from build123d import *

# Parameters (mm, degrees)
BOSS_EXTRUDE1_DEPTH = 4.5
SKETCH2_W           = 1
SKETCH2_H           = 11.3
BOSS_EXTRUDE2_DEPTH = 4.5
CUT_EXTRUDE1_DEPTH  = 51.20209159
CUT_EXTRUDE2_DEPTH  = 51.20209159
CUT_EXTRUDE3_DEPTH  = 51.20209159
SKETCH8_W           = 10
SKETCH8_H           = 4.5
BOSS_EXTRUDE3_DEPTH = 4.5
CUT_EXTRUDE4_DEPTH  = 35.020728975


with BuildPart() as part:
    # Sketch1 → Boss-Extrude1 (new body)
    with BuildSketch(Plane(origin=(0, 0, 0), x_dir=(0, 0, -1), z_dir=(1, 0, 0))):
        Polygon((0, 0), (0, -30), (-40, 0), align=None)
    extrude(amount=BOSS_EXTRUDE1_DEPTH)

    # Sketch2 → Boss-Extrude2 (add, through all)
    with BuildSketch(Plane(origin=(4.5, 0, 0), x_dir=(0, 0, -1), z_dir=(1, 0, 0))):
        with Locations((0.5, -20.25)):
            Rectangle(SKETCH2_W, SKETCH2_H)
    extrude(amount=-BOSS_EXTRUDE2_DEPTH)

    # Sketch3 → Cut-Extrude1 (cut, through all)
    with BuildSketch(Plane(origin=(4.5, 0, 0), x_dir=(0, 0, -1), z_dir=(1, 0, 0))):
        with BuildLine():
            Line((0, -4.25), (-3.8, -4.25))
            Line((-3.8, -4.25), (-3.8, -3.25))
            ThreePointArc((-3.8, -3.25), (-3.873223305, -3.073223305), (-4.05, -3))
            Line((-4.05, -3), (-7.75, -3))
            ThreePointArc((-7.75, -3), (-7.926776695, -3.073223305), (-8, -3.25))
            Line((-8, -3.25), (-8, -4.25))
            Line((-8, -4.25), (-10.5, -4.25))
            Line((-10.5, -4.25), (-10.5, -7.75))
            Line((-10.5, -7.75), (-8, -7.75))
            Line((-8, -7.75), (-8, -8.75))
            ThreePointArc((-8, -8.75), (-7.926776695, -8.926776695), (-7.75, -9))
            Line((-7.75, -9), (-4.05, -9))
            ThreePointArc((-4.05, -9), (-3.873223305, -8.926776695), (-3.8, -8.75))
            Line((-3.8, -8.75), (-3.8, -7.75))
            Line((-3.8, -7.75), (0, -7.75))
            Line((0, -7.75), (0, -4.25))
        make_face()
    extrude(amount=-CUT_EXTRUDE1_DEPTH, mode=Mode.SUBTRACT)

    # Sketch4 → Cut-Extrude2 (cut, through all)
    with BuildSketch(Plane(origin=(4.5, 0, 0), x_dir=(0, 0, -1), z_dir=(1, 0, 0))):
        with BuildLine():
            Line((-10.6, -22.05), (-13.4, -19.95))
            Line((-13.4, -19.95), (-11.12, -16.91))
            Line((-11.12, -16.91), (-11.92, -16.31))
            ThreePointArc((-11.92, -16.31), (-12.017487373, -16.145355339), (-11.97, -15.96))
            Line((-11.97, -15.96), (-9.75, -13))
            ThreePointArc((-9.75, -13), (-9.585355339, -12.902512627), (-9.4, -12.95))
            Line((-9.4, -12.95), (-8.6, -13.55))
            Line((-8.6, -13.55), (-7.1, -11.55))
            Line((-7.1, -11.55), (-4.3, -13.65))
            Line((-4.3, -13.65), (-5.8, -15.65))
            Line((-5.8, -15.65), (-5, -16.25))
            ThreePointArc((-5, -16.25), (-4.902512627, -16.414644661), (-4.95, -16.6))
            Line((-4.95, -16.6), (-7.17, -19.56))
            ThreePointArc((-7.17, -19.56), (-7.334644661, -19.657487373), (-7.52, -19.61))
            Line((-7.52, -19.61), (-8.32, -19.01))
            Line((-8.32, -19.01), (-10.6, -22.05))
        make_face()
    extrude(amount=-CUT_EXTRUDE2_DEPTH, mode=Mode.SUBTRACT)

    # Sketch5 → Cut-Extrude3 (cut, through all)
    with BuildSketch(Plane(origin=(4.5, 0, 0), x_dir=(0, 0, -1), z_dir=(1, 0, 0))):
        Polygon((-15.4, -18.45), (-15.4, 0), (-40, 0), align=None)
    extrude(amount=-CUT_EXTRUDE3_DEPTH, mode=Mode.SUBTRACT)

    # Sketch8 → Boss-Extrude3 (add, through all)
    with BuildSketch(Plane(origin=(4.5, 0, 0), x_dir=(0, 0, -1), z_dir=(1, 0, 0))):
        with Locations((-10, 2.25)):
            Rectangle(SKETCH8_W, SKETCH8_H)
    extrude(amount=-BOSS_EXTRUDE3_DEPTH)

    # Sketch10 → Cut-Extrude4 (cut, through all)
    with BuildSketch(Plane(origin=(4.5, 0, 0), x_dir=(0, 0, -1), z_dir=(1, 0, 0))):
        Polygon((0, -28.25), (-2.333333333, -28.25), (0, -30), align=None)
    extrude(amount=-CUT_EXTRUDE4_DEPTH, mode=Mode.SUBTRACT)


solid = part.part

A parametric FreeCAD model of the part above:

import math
import FreeCAD as App
import Part
import Sketcher
Q = App.Units.Quantity

doc = App.newDocument("Part")
body = doc.addObject("PartDesign::Body", "Body")

# Sketch on YZ plane
sketch1 = doc.addObject("Sketcher::SketchObject", "Sketch")
body.addObject(sketch1)
sketch1.AttachmentSupport = (doc.YZ_Plane, [""])
sketch1.MapMode = "FlatFace"
sketch1.addGeometry([
    Part.LineSegment(App.Vector(-30, 0, 0), App.Vector(0, 0, 0)),
    Part.LineSegment(App.Vector(0, 0, 0), App.Vector(0, 40, 0)),
    Part.LineSegment(App.Vector(0, 40, 0), App.Vector(-30, 0, 0)),
], False)
sketch1.addConstraint([
    Sketcher.Constraint("Coincident", 0, 2, 1, 1),
    Sketcher.Constraint("Coincident", 1, 2, 2, 1),
    Sketcher.Constraint("Coincident", 2, 2, 0, 1),
    Sketcher.Constraint("Horizontal", 0),
    Sketcher.Constraint("Vertical", 1),
    Sketcher.Constraint("Coincident", 0, 2, -1, 1),
    Sketcher.Constraint("DistanceX", 0, 1, 0, 2, Q("30 mm")),
    Sketcher.Constraint("DistanceY", 1, 1, 1, 2, Q("40 mm")),
])
pad1 = doc.addObject("PartDesign::Pad", "Pad")
body.addObject(pad1)
pad1.Profile = sketch1
pad1.Length = 4.5

# Sketch on YZ plane
sketch2 = doc.addObject("Sketcher::SketchObject", "Sketch001")
body.addObject(sketch2)
sketch2.AttachmentSupport = (doc.YZ_Plane, [""])
sketch2.MapMode = "FlatFace"
sketch2.AttachmentOffset = App.Placement(App.Vector(0, 0, 4.5), App.Rotation())
sketch2.addGeometry([
    Part.LineSegment(App.Vector(-14.6, 0, 0), App.Vector(-25.9, 0, 0)),
    Part.LineSegment(App.Vector(-25.9, 0, 0), App.Vector(-25.9, -1, 0)),
    Part.LineSegment(App.Vector(-25.9, -1, 0), App.Vector(-14.6, -1, 0)),
    Part.LineSegment(App.Vector(-14.6, -1, 0), App.Vector(-14.6, 0, 0)),
], False)
sketch2.addConstraint([
    Sketcher.Constraint("Coincident", 0, 2, 1, 1),
    Sketcher.Constraint("Coincident", 1, 2, 2, 1),
    Sketcher.Constraint("Coincident", 2, 2, 3, 1),
    Sketcher.Constraint("Coincident", 3, 2, 0, 1),
    Sketcher.Constraint("Horizontal", 0),
    Sketcher.Constraint("Vertical", 1),
    Sketcher.Constraint("Horizontal", 2),
    Sketcher.Constraint("Vertical", 3),
    Sketcher.Constraint("PointOnObject", 0, 2, -1),
    Sketcher.Constraint("DistanceY", 1, 2, 1, 1, Q("1 mm")),
    Sketcher.Constraint("DistanceX", 0, 2, 0, 1, Q("11.3 mm")),
    Sketcher.Constraint("DistanceX", 0, 2, -1, 1, Q("25.9 mm")),
])
pad2 = doc.addObject("PartDesign::Pad", "Pad001")
body.addObject(pad2)
pad2.Profile = sketch2
pad2.Length = 4.5
pad2.Reversed = True

# Sketch on YZ plane
sketch3 = doc.addObject("Sketcher::SketchObject", "Sketch002")
body.addObject(sketch3)
sketch3.AttachmentSupport = (doc.YZ_Plane, [""])
sketch3.MapMode = "FlatFace"
sketch3.AttachmentOffset = App.Placement(App.Vector(0, 0, 4.5), App.Rotation())
sketch3.addGeometry([
    Part.LineSegment(App.Vector(-4.25, 0, 0), App.Vector(-4.25, 3.8, 0)),  # 0
    Part.LineSegment(App.Vector(-4.25, 3.8, 0), App.Vector(-3.25, 3.8, 0)),  # 1
    Part.ArcOfCircle(Part.Circle(App.Vector(-3.25, 4.05, 0), App.Vector(0, 0, 1), 0.25), math.radians(-90), math.radians(0)),  # 2
    Part.LineSegment(App.Vector(-3, 4.05, 0), App.Vector(-3, 7.75, 0)),  # 3
    Part.ArcOfCircle(Part.Circle(App.Vector(-3.25, 7.75, 0), App.Vector(0, 0, 1), 0.25), math.radians(0), math.radians(90)),  # 4
    Part.LineSegment(App.Vector(-3.25, 8, 0), App.Vector(-4.25, 8, 0)),  # 5
    Part.LineSegment(App.Vector(-4.25, 8, 0), App.Vector(-4.25, 10.5, 0)),  # 6
    Part.LineSegment(App.Vector(-4.25, 10.5, 0), App.Vector(-7.75, 10.5, 0)),  # 7
    Part.LineSegment(App.Vector(-7.75, 10.5, 0), App.Vector(-7.75, 8, 0)),  # 8
    Part.LineSegment(App.Vector(-7.75, 8, 0), App.Vector(-8.75, 8, 0)),  # 9
    Part.ArcOfCircle(Part.Circle(App.Vector(-8.75, 7.75, 0), App.Vector(0, 0, 1), 0.25), math.radians(90), math.radians(180)),  # 10
    Part.LineSegment(App.Vector(-9, 7.75, 0), App.Vector(-9, 4.05, 0)),  # 11
    Part.ArcOfCircle(Part.Circle(App.Vector(-8.75, 4.05, 0), App.Vector(0, 0, 1), 0.25), math.radians(-180), math.radians(-90)),  # 12
    Part.LineSegment(App.Vector(-8.75, 3.8, 0), App.Vector(-7.75, 3.8, 0)),  # 13
    Part.LineSegment(App.Vector(-7.75, 3.8, 0), App.Vector(-7.75, 0, 0)),  # 14
    Part.LineSegment(App.Vector(-7.75, 0, 0), App.Vector(-4.25, 0, 0)),  # 15
], False)
sketch3.addConstraint([
    Sketcher.Constraint("Coincident", 0, 2, 1, 1),
    Sketcher.Constraint("Tangent", 1, 2, 2, 1),
    Sketcher.Constraint("Tangent", 2, 2, 3, 1),
    Sketcher.Constraint("Tangent", 3, 2, 4, 1),
    Sketcher.Constraint("Tangent", 4, 2, 5, 1),
    Sketcher.Constraint("Coincident", 5, 2, 6, 1),
    Sketcher.Constraint("Coincident", 6, 2, 7, 1),
    Sketcher.Constraint("Coincident", 7, 2, 8, 1),
    Sketcher.Constraint("Coincident", 8, 2, 9, 1),
    Sketcher.Constraint("Tangent", 9, 2, 10, 1),
    Sketcher.Constraint("Tangent", 10, 2, 11, 1),
    Sketcher.Constraint("Tangent", 11, 2, 12, 1),
    Sketcher.Constraint("Tangent", 12, 2, 13, 1),
    Sketcher.Constraint("Coincident", 13, 2, 14, 1),
    Sketcher.Constraint("Coincident", 14, 2, 15, 1),
    Sketcher.Constraint("Coincident", 15, 2, 0, 1),
    Sketcher.Constraint("Vertical", 0),
    Sketcher.Constraint("Horizontal", 1),
    Sketcher.Constraint("Vertical", 3),
    Sketcher.Constraint("Horizontal", 5),
    Sketcher.Constraint("Vertical", 6),
    Sketcher.Constraint("Horizontal", 7),
    Sketcher.Constraint("Vertical", 8),
    Sketcher.Constraint("Horizontal", 9),
    Sketcher.Constraint("Vertical", 11),
    Sketcher.Constraint("Horizontal", 13),
    Sketcher.Constraint("Vertical", 14),
    Sketcher.Constraint("Horizontal", 15),
    Sketcher.Constraint("Equal", 2, 4),
    Sketcher.Constraint("Equal", 4, 10),
    Sketcher.Constraint("Equal", 10, 12),
    Sketcher.Constraint("PointOnObject", 14, 2, -1),
    Sketcher.Constraint("Horizontal", 4, 3, 10, 3),
    Sketcher.Constraint("Horizontal", 2, 3, 12, 3),
    Sketcher.Constraint("Vertical", 0, 2, 5, 2),
    Sketcher.Constraint("Vertical", 8, 2, 13, 2),
    Sketcher.Constraint("Equal", 5, 9),
    Sketcher.Constraint("DistanceX", 1, 1, 1, 2, Q("1 mm")),
    Sketcher.Constraint("Radius", 2, Q("0.25 mm")),
    Sketcher.Constraint("DistanceX", 7, 2, 7, 1, Q("3.5 mm")),
    Sketcher.Constraint("DistanceY", 0, 1, 0, 2, Q("3.8 mm")),
    Sketcher.Constraint("DistanceY", 3, 1, 3, 2, Q("3.7 mm")),
    Sketcher.Constraint("DistanceY", 6, 1, 6, 2, Q("2.5 mm")),
    Sketcher.Constraint("DistanceX", 2, 2, -1, 1, Q("3 mm")),
])
pocket1 = doc.addObject("PartDesign::Pocket", "Pocket")
body.addObject(pocket1)
pocket1.Profile = sketch3
pocket1.Type = "ThroughAll"

# Sketch on YZ plane
sketch4 = doc.addObject("Sketcher::SketchObject", "Sketch003")
body.addObject(sketch4)
sketch4.AttachmentSupport = (doc.YZ_Plane, [""])
sketch4.MapMode = "FlatFace"
sketch4.AttachmentOffset = App.Placement(App.Vector(0, 0, 4.5), App.Rotation())
sketch4.addGeometry([
    Part.LineSegment(App.Vector(-19.95, 13.4, 0), App.Vector(-22.05, 10.6, 0)),  # 0
    Part.LineSegment(App.Vector(-22.05, 10.6, 0), App.Vector(-19.01, 8.32, 0)),  # 1
    Part.LineSegment(App.Vector(-19.01, 8.32, 0), App.Vector(-19.61, 7.52, 0)),  # 2
    Part.ArcOfCircle(Part.Circle(App.Vector(-19.41, 7.37, 0), App.Vector(0, 0, 1), 0.25), math.radians(143.130102), math.radians(233.130102)),  # 3
    Part.LineSegment(App.Vector(-19.56, 7.17, 0), App.Vector(-16.6, 4.95, 0)),  # 4
    Part.ArcOfCircle(Part.Circle(App.Vector(-16.45, 5.15, 0), App.Vector(0, 0, 1), 0.25), math.radians(-126.869898), math.radians(-36.869898)),  # 5
    Part.LineSegment(App.Vector(-16.25, 5, 0), App.Vector(-15.65, 5.8, 0)),  # 6
    Part.LineSegment(App.Vector(-15.65, 5.8, 0), App.Vector(-13.65, 4.3, 0)),  # 7
    Part.LineSegment(App.Vector(-13.65, 4.3, 0), App.Vector(-11.55, 7.1, 0)),  # 8
    Part.LineSegment(App.Vector(-11.55, 7.1, 0), App.Vector(-13.55, 8.6, 0)),  # 9
    Part.LineSegment(App.Vector(-13.55, 8.6, 0), App.Vector(-12.95, 9.4, 0)),  # 10
    Part.ArcOfCircle(Part.Circle(App.Vector(-13.15, 9.55, 0), App.Vector(0, 0, 1), 0.25), math.radians(-36.869898), math.radians(53.130102)),  # 11
    Part.LineSegment(App.Vector(-13, 9.75, 0), App.Vector(-15.96, 11.97, 0)),  # 12
    Part.ArcOfCircle(Part.Circle(App.Vector(-16.11, 11.77, 0), App.Vector(0, 0, 1), 0.25), math.radians(53.130102), math.radians(143.130102)),  # 13
    Part.LineSegment(App.Vector(-16.31, 11.92, 0), App.Vector(-16.91, 11.12, 0)),  # 14
    Part.LineSegment(App.Vector(-16.91, 11.12, 0), App.Vector(-19.95, 13.4, 0)),  # 15
], False)
sketch4.addConstraint([
    Sketcher.Constraint("Coincident", 0, 2, 1, 1),
    Sketcher.Constraint("Coincident", 1, 2, 2, 1),
    Sketcher.Constraint("Tangent", 2, 2, 3, 1),
    Sketcher.Constraint("Tangent", 3, 2, 4, 1),
    Sketcher.Constraint("Tangent", 4, 2, 5, 1),
    Sketcher.Constraint("Tangent", 5, 2, 6, 1),
    Sketcher.Constraint("Coincident", 6, 2, 7, 1),
    Sketcher.Constraint("Coincident", 7, 2, 8, 1),
    Sketcher.Constraint("Coincident", 8, 2, 9, 1),
    Sketcher.Constraint("Coincident", 9, 2, 10, 1),
    Sketcher.Constraint("Tangent", 10, 2, 11, 1),
    Sketcher.Constraint("Tangent", 11, 2, 12, 1),
    Sketcher.Constraint("Tangent", 12, 2, 13, 1),
    Sketcher.Constraint("Tangent", 13, 2, 14, 1),
    Sketcher.Constraint("Coincident", 14, 2, 15, 1),
    Sketcher.Constraint("Coincident", 15, 2, 0, 1),
    Sketcher.Constraint("Equal", 3, 5),
    Sketcher.Constraint("Equal", 5, 11),
    Sketcher.Constraint("Equal", 11, 13),
    Sketcher.Constraint("Perpendicular", 0, 1),
    Sketcher.Constraint("Perpendicular", 1, 2),
    Sketcher.Constraint("Perpendicular", 2, 4),
    Sketcher.Constraint("Perpendicular", 4, 6),
    Sketcher.Constraint("Perpendicular", 6, 7),
    Sketcher.Constraint("Perpendicular", 7, 8),
    Sketcher.Constraint("Perpendicular", 8, 9),
    Sketcher.Constraint("Perpendicular", 9, 10),
    Sketcher.Constraint("Perpendicular", 10, 12),
    Sketcher.Constraint("Perpendicular", 12, 14),
    Sketcher.Constraint("Perpendicular", 14, 15),
    Sketcher.Constraint("Equal", 2, 6),
    Sketcher.Constraint("Equal", 0, 8),
    Sketcher.Constraint("Equal", 7, 9),
    Sketcher.Constraint("Equal", 6, 10),
    Sketcher.Constraint("Equal", 4, 12),
    Sketcher.Constraint("Radius", 3, Q("0.25 mm")),
    Sketcher.Constraint("Distance", 2, Q("1 mm")),
    Sketcher.Constraint("DistanceY", -1, 1, 5, 2, Q("5 mm")),
    Sketcher.Constraint("DistanceX", 11, 2, -1, 1, Q("13 mm")),
    Sketcher.Constraint("DistanceX", 6, 2, 7, 2, Q("2 mm")),
    Sketcher.Constraint("Distance", 0, Q("3.5 mm")),
    Sketcher.Constraint("Distance", 1, Q("3.8 mm")),
    Sketcher.Constraint("Distance", 4, Q("3.7 mm")),
    Sketcher.Constraint("Distance", 7, Q("2.5 mm")),
])
pocket2 = doc.addObject("PartDesign::Pocket", "Pocket001")
body.addObject(pocket2)
pocket2.Profile = sketch4
pocket2.Type = "ThroughAll"

# Sketch on YZ plane
sketch5 = doc.addObject("Sketcher::SketchObject", "Sketch004")
body.addObject(sketch5)
sketch5.AttachmentSupport = (doc.YZ_Plane, [""])
sketch5.MapMode = "FlatFace"
sketch5.AttachmentOffset = App.Placement(App.Vector(0, 0, 4.5), App.Rotation())
sketch5.addGeometry([
    Part.LineSegment(App.Vector(-18.45, 15.4, 0), App.Vector(0, 15.4, 0)),
    Part.LineSegment(App.Vector(0, 15.4, 0), App.Vector(0, 40, 0)),
    Part.LineSegment(App.Vector(0, 40, 0), App.Vector(-18.45, 15.4, 0)),
], False)
sketch5.addConstraint([
    Sketcher.Constraint("Coincident", 0, 2, 1, 1),
    Sketcher.Constraint("Coincident", 1, 2, 2, 1),
    Sketcher.Constraint("Coincident", 2, 2, 0, 1),
    Sketcher.Constraint("Horizontal", 0),
    Sketcher.Constraint("Vertical", 1),
    Sketcher.Constraint("PointOnObject", 0, 2, -2),
    Sketcher.Constraint("DistanceY", 1, 1, 1, 2, Q("24.6 mm")),
    Sketcher.Constraint("DistanceY", -1, 1, 1, 2, Q("40 mm")),
    Sketcher.Constraint("DistanceX", 0, 1, 0, 2, Q("18.45 mm")),
])
pocket3 = doc.addObject("PartDesign::Pocket", "Pocket002")
body.addObject(pocket3)
pocket3.Profile = sketch5
pocket3.Type = "ThroughAll"

# Sketch on YZ plane
sketch6 = doc.addObject("Sketcher::SketchObject", "Sketch005")
body.addObject(sketch6)
sketch6.AttachmentSupport = (doc.YZ_Plane, [""])
sketch6.MapMode = "FlatFace"
sketch6.AttachmentOffset = App.Placement(App.Vector(0, 0, 4.5), App.Rotation())
sketch6.addGeometry([
    Part.LineSegment(App.Vector(4.5, 15, 0), App.Vector(0, 15, 0)),
    Part.LineSegment(App.Vector(0, 15, 0), App.Vector(0, 5, 0)),
    Part.LineSegment(App.Vector(0, 5, 0), App.Vector(4.5, 5, 0)),
    Part.LineSegment(App.Vector(4.5, 5, 0), App.Vector(4.5, 15, 0)),
], False)
sketch6.addConstraint([
    Sketcher.Constraint("Coincident", 0, 2, 1, 1),
    Sketcher.Constraint("Coincident", 1, 2, 2, 1),
    Sketcher.Constraint("Coincident", 2, 2, 3, 1),
    Sketcher.Constraint("Coincident", 3, 2, 0, 1),
    Sketcher.Constraint("Horizontal", 0),
    Sketcher.Constraint("Vertical", 1),
    Sketcher.Constraint("Horizontal", 2),
    Sketcher.Constraint("Vertical", 3),
    Sketcher.Constraint("PointOnObject", 0, 2, -2),
    Sketcher.Constraint("DistanceY", 1, 2, 1, 1, Q("10 mm")),
    Sketcher.Constraint("DistanceX", 0, 2, 0, 1, Q("4.5 mm")),
    Sketcher.Constraint("DistanceY", -1, 1, 0, 2, Q("15 mm")),
])
pad3 = doc.addObject("PartDesign::Pad", "Pad002")
body.addObject(pad3)
pad3.Profile = sketch6
pad3.Length = 4.5
pad3.Reversed = True

# Sketch on YZ plane
sketch7 = doc.addObject("Sketcher::SketchObject", "Sketch006")
body.addObject(sketch7)
sketch7.AttachmentSupport = (doc.YZ_Plane, [""])
sketch7.MapMode = "FlatFace"
sketch7.AttachmentOffset = App.Placement(App.Vector(0, 0, 4.5), App.Rotation())
sketch7.addGeometry([
    Part.LineSegment(App.Vector(-28.25, 0, 0), App.Vector(-28.25, 2.333333, 0)),
    Part.LineSegment(App.Vector(-28.25, 2.333333, 0), App.Vector(-30, 0, 0)),
    Part.LineSegment(App.Vector(-30, 0, 0), App.Vector(-28.25, 0, 0)),
], False)
sketch7.addConstraint([
    Sketcher.Constraint("Coincident", 0, 2, 1, 1),
    Sketcher.Constraint("Coincident", 1, 2, 2, 1),
    Sketcher.Constraint("Coincident", 2, 2, 0, 1),
    Sketcher.Constraint("Vertical", 0),
    Sketcher.Constraint("Horizontal", 2),
    Sketcher.Constraint("PointOnObject", 1, 2, -1),
    Sketcher.Constraint("DistanceX", 1, 2, -1, 1, Q("30 mm")),
    Sketcher.Constraint("DistanceX", 2, 1, 2, 2, Q("1.75 mm")),
    Sketcher.Constraint("DistanceY", 0, 1, 0, 2, Q("2.333333 mm")),
])
pocket4 = doc.addObject("PartDesign::Pocket", "Pocket003")
body.addObject(pocket4)
pocket4.Profile = sketch7
pocket4.Type = "ThroughAll"

doc.recompute()
